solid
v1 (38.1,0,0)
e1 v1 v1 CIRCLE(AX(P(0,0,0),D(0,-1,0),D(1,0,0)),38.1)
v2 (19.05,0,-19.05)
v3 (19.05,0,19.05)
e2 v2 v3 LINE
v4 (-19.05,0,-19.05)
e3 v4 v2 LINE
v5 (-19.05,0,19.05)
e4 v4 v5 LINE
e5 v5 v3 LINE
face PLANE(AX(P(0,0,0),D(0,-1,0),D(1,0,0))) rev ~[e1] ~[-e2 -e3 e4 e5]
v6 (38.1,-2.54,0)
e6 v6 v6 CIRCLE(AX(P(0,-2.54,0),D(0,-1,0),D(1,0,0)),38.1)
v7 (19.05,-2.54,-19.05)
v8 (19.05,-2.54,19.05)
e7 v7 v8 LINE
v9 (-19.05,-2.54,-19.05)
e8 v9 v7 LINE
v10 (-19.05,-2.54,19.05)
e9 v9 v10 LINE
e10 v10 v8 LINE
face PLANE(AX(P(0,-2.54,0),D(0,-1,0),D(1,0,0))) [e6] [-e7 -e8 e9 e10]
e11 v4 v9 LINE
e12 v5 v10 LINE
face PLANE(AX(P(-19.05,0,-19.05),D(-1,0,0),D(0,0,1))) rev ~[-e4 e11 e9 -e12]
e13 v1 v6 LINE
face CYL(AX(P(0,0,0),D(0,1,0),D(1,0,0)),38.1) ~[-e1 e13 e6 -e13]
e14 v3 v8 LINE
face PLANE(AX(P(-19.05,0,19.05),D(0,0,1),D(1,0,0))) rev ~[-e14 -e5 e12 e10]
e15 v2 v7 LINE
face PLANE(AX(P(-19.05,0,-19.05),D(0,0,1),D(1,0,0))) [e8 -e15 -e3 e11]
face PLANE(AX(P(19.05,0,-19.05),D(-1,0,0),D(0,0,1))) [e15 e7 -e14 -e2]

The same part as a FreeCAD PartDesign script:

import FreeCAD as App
import Part
import Sketcher
Q = App.Units.Quantity


def add_polygon(sketch, points):
    """Adds a closed chain of lines whose ends are joined by coincident constraints."""
    first, n = sketch.GeometryCount, len(points)
    for a, b in zip(points, points[1:] + points[:1]):
        sketch.addGeometry(Part.LineSegment(App.Vector(*a, 0), App.Vector(*b, 0)), False)
    for i in range(n):
        sketch.addConstraint(Sketcher.Constraint("Coincident", first + i, 2, first + (i + 1) % n, 1))

doc = App.newDocument("Part")
body = doc.addObject("PartDesign::Body", "Body")

# Sketch on XZ plane
sketch1 = body.newObject("Sketcher::SketchObject", "Sketch")
sketch1.AttachmentSupport = (doc.getObject("XZ_Plane"), [""])
sketch1.MapMode = "FlatFace"
sketch1.addGeometry(Part.Circle(App.Vector(0, 0, 0), App.Vector(0, 0, 1), 38), False)  # 0
add_polygon(sketch1, [(19, -19), (-19, -19), (-19, 19), (19, 19)])  # lines 1-4
sketch1.addConstraint(Sketcher.Constraint("Horizontal", 1))
sketch1.addConstraint(Sketcher.Constraint("Vertical", 2))
sketch1.addConstraint(Sketcher.Constraint("Horizontal", 3))
sketch1.addConstraint(Sketcher.Constraint("Vertical", 4))
sketch1.addConstraint(Sketcher.Constraint("Coincident", 0, 3, -1, 1))
sketch1.addConstraint(Sketcher.Constraint("Symmetric", 1, 2, 3, 2, -1, 1))
sketch1.addConstraint(Sketcher.Constraint("Equal", 3, 2))
sketch1.addConstraint(Sketcher.Constraint("Diameter", 0, Q("3 in")))
sketch1.addConstraint(Sketcher.Constraint("DistanceX", 1, 2, 1, 1, Q("1.5 in")))
pad1 = body.newObject("PartDesign::Pad", "Pad")
pad1.Profile = sketch1
pad1.Length = Q("0.1 in")

doc.recompute()
